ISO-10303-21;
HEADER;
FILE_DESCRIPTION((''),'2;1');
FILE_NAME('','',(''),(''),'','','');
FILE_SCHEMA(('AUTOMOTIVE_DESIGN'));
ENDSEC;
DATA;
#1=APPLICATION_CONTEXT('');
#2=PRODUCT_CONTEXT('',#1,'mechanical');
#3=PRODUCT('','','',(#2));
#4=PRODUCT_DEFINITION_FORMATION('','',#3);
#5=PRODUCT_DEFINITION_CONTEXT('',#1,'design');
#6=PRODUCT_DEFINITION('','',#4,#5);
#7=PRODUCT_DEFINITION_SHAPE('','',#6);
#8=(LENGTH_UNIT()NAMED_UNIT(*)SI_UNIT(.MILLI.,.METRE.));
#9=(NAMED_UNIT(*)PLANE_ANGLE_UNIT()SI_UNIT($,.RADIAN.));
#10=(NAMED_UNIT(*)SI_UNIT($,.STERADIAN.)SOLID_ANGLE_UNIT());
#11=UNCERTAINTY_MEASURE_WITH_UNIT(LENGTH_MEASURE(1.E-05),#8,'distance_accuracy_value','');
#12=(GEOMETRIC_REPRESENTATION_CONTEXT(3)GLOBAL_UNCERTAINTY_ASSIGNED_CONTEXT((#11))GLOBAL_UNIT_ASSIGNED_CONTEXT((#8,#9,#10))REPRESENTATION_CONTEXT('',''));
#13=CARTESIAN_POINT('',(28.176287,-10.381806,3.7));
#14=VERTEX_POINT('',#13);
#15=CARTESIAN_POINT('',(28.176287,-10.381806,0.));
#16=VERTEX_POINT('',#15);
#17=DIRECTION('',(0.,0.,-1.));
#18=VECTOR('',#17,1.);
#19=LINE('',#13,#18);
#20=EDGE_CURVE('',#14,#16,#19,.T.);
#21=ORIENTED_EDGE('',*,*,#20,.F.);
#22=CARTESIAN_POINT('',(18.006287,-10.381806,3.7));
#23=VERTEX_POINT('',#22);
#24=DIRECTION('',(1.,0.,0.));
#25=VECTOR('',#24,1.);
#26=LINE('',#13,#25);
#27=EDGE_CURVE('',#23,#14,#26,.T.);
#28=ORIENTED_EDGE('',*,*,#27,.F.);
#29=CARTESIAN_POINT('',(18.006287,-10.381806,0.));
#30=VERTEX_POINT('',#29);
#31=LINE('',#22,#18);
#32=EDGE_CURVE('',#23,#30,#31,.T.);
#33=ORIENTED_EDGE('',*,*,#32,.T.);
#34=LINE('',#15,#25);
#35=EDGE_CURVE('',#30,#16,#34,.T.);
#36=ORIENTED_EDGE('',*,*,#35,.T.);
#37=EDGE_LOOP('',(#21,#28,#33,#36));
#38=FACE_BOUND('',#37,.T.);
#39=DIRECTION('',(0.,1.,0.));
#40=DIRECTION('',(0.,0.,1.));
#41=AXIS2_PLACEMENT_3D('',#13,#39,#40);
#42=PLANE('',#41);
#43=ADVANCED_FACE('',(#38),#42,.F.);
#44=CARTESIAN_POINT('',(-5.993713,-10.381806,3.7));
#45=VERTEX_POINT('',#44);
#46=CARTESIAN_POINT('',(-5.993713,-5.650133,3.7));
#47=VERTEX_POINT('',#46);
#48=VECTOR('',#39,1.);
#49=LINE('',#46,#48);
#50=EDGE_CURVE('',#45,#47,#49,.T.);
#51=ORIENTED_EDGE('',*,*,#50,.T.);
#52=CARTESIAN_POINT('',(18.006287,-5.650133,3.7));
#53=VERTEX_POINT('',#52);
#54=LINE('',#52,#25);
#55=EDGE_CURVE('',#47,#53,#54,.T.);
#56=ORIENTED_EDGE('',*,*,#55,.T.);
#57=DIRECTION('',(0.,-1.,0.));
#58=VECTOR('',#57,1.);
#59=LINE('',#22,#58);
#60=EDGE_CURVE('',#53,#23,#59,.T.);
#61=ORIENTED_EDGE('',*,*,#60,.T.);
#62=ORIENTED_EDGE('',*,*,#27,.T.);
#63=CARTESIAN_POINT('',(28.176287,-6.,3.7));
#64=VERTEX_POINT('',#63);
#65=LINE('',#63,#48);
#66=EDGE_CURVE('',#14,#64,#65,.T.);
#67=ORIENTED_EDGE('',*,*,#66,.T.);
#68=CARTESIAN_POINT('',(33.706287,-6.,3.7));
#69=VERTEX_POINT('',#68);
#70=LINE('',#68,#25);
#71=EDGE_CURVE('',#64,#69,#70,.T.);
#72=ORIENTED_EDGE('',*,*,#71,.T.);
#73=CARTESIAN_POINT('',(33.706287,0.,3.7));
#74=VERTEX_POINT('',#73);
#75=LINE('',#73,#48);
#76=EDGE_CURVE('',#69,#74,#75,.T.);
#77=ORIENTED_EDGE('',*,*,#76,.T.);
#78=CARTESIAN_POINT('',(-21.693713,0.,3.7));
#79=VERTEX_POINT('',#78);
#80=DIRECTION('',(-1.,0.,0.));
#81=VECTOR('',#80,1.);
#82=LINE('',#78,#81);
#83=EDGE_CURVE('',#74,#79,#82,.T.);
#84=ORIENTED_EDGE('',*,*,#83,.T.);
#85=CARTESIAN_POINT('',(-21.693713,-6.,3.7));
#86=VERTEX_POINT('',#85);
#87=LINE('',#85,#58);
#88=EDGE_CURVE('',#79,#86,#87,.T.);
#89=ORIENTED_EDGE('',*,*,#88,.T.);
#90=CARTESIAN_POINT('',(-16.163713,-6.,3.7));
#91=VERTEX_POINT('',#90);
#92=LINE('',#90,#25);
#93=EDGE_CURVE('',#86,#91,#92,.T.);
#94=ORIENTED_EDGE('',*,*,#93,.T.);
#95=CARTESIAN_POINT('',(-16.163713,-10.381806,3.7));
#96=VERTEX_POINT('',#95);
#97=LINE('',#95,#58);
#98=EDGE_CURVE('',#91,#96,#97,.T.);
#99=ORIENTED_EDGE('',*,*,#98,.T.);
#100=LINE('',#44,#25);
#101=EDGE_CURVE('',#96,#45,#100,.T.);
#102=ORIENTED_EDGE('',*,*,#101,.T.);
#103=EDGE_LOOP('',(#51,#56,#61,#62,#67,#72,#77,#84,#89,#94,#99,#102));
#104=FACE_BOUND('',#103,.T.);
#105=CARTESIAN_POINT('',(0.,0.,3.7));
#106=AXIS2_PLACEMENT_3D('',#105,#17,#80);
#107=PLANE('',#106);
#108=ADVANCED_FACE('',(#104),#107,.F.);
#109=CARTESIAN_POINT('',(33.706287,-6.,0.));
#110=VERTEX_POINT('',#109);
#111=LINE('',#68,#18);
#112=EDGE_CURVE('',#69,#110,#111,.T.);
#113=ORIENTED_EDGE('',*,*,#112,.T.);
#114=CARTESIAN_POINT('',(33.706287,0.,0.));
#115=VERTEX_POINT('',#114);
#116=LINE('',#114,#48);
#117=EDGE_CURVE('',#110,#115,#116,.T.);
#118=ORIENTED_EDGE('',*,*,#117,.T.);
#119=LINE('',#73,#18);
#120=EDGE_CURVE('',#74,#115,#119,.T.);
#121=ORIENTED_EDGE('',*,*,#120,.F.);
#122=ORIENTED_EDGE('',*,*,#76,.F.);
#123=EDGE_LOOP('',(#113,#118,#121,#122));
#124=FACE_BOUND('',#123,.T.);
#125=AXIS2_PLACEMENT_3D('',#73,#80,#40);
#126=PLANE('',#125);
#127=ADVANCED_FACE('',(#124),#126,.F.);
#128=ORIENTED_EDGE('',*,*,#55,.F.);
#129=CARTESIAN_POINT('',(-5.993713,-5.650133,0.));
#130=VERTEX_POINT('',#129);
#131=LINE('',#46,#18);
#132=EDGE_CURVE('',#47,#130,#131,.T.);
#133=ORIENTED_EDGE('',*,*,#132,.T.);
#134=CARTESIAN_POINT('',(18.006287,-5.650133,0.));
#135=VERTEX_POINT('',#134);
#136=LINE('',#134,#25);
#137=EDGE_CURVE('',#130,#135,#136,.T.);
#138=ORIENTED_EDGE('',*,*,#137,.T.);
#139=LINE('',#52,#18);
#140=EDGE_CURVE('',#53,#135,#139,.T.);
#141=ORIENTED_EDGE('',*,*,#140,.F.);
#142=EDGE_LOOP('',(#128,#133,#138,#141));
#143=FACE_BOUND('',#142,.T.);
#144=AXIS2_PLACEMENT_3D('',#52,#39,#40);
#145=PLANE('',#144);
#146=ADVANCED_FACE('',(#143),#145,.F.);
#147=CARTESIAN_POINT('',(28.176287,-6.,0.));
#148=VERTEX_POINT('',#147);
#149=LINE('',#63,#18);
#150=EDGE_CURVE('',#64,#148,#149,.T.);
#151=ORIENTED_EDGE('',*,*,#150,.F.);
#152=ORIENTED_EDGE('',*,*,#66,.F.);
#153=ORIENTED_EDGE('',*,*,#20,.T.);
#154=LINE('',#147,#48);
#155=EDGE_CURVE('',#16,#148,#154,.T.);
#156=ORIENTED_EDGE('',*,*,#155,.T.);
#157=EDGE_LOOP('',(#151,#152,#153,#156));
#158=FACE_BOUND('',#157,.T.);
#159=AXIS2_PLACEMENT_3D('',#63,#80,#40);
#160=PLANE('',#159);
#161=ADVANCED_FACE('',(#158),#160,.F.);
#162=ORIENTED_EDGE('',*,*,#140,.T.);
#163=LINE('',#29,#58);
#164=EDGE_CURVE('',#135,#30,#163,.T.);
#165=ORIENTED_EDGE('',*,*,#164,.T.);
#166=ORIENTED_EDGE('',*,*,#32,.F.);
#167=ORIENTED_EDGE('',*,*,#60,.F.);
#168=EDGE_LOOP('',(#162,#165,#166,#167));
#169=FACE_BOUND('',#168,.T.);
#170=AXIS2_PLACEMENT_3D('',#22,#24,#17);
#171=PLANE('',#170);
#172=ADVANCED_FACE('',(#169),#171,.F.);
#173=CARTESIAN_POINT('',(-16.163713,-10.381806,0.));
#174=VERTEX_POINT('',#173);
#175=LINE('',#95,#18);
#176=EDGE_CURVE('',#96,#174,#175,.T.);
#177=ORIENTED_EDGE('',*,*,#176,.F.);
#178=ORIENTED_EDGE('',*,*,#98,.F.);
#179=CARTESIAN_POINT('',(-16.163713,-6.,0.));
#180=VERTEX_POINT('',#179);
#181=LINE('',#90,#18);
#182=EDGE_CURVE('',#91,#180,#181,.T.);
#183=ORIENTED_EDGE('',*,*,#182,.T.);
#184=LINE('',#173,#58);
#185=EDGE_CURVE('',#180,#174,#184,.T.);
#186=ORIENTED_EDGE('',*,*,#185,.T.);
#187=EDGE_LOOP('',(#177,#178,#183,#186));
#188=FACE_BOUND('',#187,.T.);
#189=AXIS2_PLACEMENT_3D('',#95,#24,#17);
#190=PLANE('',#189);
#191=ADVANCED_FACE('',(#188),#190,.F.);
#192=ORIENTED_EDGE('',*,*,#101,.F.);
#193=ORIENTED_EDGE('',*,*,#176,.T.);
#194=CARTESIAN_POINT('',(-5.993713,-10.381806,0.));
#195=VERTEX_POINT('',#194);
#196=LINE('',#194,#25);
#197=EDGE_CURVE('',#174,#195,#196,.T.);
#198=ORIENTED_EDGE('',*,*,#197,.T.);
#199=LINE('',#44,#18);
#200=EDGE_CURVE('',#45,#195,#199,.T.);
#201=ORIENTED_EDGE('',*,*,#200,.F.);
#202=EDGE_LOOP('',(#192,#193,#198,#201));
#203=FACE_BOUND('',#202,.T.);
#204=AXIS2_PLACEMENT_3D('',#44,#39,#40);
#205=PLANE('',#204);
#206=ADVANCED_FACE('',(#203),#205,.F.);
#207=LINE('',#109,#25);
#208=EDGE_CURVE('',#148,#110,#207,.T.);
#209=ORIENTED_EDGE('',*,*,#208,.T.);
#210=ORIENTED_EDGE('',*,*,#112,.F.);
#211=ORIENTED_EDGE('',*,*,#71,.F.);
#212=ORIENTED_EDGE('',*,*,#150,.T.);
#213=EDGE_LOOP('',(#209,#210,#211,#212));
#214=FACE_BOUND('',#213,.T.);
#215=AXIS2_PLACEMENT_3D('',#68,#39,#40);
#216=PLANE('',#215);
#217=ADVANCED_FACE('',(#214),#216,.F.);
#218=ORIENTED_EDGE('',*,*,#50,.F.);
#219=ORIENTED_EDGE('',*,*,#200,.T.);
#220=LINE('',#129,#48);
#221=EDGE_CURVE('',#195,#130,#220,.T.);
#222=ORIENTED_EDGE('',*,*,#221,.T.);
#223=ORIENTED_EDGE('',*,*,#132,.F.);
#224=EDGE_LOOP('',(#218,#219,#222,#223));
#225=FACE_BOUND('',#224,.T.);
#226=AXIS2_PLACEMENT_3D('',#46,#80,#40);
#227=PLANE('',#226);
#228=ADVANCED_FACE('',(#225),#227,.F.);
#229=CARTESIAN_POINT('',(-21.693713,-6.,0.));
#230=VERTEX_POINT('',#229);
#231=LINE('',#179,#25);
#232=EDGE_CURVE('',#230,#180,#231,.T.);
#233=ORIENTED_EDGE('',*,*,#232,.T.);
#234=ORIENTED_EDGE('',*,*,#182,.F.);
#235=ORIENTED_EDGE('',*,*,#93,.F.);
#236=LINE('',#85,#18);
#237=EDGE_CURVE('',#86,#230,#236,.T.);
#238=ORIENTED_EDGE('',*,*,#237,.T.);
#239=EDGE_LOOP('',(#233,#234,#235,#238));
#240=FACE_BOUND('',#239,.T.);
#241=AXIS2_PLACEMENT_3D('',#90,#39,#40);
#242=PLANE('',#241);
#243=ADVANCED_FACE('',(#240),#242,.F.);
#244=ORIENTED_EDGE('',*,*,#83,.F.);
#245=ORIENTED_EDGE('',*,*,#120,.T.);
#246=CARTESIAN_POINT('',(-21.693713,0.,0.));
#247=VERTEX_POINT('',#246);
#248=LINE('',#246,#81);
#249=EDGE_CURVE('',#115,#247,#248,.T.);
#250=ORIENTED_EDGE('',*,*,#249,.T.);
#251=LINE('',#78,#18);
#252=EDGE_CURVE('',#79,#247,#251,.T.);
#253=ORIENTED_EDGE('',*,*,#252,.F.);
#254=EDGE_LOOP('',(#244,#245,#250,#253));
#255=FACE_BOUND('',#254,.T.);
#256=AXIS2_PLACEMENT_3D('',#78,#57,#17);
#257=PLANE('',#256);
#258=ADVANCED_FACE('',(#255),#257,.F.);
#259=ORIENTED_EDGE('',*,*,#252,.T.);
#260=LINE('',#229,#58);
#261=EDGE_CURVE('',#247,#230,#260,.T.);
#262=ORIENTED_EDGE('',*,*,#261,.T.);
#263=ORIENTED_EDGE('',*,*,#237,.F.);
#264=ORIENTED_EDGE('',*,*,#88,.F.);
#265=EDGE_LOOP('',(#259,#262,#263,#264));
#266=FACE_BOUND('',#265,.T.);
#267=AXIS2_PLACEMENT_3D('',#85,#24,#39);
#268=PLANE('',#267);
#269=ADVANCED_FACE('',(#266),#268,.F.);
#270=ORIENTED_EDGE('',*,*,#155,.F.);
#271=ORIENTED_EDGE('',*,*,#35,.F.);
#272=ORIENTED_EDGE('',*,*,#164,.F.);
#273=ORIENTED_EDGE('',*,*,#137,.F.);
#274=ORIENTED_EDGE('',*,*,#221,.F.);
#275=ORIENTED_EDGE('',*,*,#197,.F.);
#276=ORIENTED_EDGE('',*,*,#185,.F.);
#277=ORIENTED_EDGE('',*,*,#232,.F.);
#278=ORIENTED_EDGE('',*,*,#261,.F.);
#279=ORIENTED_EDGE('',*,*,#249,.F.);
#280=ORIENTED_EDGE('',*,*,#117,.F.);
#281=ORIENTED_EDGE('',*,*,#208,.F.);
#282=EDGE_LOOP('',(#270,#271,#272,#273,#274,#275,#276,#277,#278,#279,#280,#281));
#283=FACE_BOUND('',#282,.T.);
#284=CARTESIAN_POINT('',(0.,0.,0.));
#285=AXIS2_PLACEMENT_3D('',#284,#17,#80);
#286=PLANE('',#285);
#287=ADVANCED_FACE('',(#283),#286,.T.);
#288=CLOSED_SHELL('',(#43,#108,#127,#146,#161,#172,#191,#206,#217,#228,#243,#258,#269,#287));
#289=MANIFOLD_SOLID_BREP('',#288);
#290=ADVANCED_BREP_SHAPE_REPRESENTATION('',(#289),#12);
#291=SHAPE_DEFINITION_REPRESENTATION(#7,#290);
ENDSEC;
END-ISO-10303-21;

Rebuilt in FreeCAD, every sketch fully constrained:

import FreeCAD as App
import Part
import Sketcher

V = App.Vector
Q = App.Units.Quantity


def add_polygon(sketch, points):
    """Adds a closed chain of lines whose ends are joined by coincident constraints."""
    first, n = sketch.GeometryCount, len(points)
    for a, b in zip(points, points[1:] + points[:1]):
        sketch.addGeometry(Part.LineSegment(App.Vector(*a, 0), App.Vector(*b, 0)), False)
    for i in range(n):
        sketch.addConstraint(Sketcher.Constraint("Coincident", first + i, 2, first + (i + 1) % n, 1))

doc = App.newDocument("Part")
body = doc.addObject("PartDesign::Body", "Body")

# Sketch on XY plane
sketch1 = body.newObject("Sketcher::SketchObject", "Sketch")
sketch1.AttachmentSupport = (doc.getObject("XY_Plane"), [""])
sketch1.MapMode = "FlatFace"
add_polygon(sketch1, [(33.7, 0), (-21.7, 0), (-21.7, -6), (-16.2, -6), (-16.2, -10.4), (-6, -10.4), (-6, -5.7), (18, -5.7), (18, -10.4), (28.2, -10.4), (28.2, -6), (33.7, -6)])  # lines 0-11
sketch1.addConstraint(Sketcher.Constraint("Horizontal", 0))
sketch1.addConstraint(Sketcher.Constraint("Vertical", 1))
sketch1.addConstraint(Sketcher.Constraint("Horizontal", 2))
sketch1.addConstraint(Sketcher.Constraint("Vertical", 3))
sketch1.addConstraint(Sketcher.Constraint("Horizontal", 4))
sketch1.addConstraint(Sketcher.Constraint("Vertical", 5))
sketch1.addConstraint(Sketcher.Constraint("Horizontal", 6))
sketch1.addConstraint(Sketcher.Constraint("Vertical", 7))
sketch1.addConstraint(Sketcher.Constraint("Horizontal", 8))
sketch1.addConstraint(Sketcher.Constraint("Vertical", 9))
sketch1.addConstraint(Sketcher.Constraint("Horizontal", 10))
sketch1.addConstraint(Sketcher.Constraint("Vertical", 11))
sketch1.addConstraint(Sketcher.Constraint("PointOnObject", 0, 2, -1))
sketch1.addConstraint(Sketcher.Constraint("Horizontal", 4, 2, 7, 2))
sketch1.addConstraint(Sketcher.Constraint("Horizontal", 2, 2, 9, 2))
sketch1.addConstraint(Sketcher.Constraint("Equal", 4, 8))
sketch1.addConstraint(Sketcher.Constraint("Equal", 2, 10))
sketch1.addConstraint(Sketcher.Constraint("DistanceX", 6, 1, 6, 2, Q("24 mm")))
sketch1.addConstraint(Sketcher.Constraint("DistanceY", 1, 2, 1, 1, Q("6 mm")))
sketch1.addConstraint(Sketcher.Constraint("DistanceX", 0, 2, 0, 1, Q("55.4 mm")))
sketch1.addConstraint(Sketcher.Constraint("DistanceX", 2, 1, 2, 2, Q("5.53 mm")))
sketch1.addConstraint(Sketcher.Constraint("DistanceY", 3, 2, 3, 1, Q("4.381806 mm")))
sketch1.addConstraint(Sketcher.Constraint("DistanceY", 5, 1, 5, 2, Q("4.731673 mm")))
sketch1.addConstraint(Sketcher.Constraint("DistanceX", 0, 2, -1, 1, Q("21.693713 mm")))
pad1 = body.newObject("PartDesign::Pad", "Pad")
pad1.Profile = sketch1
pad1.Length = 3.7

doc.recompute()
